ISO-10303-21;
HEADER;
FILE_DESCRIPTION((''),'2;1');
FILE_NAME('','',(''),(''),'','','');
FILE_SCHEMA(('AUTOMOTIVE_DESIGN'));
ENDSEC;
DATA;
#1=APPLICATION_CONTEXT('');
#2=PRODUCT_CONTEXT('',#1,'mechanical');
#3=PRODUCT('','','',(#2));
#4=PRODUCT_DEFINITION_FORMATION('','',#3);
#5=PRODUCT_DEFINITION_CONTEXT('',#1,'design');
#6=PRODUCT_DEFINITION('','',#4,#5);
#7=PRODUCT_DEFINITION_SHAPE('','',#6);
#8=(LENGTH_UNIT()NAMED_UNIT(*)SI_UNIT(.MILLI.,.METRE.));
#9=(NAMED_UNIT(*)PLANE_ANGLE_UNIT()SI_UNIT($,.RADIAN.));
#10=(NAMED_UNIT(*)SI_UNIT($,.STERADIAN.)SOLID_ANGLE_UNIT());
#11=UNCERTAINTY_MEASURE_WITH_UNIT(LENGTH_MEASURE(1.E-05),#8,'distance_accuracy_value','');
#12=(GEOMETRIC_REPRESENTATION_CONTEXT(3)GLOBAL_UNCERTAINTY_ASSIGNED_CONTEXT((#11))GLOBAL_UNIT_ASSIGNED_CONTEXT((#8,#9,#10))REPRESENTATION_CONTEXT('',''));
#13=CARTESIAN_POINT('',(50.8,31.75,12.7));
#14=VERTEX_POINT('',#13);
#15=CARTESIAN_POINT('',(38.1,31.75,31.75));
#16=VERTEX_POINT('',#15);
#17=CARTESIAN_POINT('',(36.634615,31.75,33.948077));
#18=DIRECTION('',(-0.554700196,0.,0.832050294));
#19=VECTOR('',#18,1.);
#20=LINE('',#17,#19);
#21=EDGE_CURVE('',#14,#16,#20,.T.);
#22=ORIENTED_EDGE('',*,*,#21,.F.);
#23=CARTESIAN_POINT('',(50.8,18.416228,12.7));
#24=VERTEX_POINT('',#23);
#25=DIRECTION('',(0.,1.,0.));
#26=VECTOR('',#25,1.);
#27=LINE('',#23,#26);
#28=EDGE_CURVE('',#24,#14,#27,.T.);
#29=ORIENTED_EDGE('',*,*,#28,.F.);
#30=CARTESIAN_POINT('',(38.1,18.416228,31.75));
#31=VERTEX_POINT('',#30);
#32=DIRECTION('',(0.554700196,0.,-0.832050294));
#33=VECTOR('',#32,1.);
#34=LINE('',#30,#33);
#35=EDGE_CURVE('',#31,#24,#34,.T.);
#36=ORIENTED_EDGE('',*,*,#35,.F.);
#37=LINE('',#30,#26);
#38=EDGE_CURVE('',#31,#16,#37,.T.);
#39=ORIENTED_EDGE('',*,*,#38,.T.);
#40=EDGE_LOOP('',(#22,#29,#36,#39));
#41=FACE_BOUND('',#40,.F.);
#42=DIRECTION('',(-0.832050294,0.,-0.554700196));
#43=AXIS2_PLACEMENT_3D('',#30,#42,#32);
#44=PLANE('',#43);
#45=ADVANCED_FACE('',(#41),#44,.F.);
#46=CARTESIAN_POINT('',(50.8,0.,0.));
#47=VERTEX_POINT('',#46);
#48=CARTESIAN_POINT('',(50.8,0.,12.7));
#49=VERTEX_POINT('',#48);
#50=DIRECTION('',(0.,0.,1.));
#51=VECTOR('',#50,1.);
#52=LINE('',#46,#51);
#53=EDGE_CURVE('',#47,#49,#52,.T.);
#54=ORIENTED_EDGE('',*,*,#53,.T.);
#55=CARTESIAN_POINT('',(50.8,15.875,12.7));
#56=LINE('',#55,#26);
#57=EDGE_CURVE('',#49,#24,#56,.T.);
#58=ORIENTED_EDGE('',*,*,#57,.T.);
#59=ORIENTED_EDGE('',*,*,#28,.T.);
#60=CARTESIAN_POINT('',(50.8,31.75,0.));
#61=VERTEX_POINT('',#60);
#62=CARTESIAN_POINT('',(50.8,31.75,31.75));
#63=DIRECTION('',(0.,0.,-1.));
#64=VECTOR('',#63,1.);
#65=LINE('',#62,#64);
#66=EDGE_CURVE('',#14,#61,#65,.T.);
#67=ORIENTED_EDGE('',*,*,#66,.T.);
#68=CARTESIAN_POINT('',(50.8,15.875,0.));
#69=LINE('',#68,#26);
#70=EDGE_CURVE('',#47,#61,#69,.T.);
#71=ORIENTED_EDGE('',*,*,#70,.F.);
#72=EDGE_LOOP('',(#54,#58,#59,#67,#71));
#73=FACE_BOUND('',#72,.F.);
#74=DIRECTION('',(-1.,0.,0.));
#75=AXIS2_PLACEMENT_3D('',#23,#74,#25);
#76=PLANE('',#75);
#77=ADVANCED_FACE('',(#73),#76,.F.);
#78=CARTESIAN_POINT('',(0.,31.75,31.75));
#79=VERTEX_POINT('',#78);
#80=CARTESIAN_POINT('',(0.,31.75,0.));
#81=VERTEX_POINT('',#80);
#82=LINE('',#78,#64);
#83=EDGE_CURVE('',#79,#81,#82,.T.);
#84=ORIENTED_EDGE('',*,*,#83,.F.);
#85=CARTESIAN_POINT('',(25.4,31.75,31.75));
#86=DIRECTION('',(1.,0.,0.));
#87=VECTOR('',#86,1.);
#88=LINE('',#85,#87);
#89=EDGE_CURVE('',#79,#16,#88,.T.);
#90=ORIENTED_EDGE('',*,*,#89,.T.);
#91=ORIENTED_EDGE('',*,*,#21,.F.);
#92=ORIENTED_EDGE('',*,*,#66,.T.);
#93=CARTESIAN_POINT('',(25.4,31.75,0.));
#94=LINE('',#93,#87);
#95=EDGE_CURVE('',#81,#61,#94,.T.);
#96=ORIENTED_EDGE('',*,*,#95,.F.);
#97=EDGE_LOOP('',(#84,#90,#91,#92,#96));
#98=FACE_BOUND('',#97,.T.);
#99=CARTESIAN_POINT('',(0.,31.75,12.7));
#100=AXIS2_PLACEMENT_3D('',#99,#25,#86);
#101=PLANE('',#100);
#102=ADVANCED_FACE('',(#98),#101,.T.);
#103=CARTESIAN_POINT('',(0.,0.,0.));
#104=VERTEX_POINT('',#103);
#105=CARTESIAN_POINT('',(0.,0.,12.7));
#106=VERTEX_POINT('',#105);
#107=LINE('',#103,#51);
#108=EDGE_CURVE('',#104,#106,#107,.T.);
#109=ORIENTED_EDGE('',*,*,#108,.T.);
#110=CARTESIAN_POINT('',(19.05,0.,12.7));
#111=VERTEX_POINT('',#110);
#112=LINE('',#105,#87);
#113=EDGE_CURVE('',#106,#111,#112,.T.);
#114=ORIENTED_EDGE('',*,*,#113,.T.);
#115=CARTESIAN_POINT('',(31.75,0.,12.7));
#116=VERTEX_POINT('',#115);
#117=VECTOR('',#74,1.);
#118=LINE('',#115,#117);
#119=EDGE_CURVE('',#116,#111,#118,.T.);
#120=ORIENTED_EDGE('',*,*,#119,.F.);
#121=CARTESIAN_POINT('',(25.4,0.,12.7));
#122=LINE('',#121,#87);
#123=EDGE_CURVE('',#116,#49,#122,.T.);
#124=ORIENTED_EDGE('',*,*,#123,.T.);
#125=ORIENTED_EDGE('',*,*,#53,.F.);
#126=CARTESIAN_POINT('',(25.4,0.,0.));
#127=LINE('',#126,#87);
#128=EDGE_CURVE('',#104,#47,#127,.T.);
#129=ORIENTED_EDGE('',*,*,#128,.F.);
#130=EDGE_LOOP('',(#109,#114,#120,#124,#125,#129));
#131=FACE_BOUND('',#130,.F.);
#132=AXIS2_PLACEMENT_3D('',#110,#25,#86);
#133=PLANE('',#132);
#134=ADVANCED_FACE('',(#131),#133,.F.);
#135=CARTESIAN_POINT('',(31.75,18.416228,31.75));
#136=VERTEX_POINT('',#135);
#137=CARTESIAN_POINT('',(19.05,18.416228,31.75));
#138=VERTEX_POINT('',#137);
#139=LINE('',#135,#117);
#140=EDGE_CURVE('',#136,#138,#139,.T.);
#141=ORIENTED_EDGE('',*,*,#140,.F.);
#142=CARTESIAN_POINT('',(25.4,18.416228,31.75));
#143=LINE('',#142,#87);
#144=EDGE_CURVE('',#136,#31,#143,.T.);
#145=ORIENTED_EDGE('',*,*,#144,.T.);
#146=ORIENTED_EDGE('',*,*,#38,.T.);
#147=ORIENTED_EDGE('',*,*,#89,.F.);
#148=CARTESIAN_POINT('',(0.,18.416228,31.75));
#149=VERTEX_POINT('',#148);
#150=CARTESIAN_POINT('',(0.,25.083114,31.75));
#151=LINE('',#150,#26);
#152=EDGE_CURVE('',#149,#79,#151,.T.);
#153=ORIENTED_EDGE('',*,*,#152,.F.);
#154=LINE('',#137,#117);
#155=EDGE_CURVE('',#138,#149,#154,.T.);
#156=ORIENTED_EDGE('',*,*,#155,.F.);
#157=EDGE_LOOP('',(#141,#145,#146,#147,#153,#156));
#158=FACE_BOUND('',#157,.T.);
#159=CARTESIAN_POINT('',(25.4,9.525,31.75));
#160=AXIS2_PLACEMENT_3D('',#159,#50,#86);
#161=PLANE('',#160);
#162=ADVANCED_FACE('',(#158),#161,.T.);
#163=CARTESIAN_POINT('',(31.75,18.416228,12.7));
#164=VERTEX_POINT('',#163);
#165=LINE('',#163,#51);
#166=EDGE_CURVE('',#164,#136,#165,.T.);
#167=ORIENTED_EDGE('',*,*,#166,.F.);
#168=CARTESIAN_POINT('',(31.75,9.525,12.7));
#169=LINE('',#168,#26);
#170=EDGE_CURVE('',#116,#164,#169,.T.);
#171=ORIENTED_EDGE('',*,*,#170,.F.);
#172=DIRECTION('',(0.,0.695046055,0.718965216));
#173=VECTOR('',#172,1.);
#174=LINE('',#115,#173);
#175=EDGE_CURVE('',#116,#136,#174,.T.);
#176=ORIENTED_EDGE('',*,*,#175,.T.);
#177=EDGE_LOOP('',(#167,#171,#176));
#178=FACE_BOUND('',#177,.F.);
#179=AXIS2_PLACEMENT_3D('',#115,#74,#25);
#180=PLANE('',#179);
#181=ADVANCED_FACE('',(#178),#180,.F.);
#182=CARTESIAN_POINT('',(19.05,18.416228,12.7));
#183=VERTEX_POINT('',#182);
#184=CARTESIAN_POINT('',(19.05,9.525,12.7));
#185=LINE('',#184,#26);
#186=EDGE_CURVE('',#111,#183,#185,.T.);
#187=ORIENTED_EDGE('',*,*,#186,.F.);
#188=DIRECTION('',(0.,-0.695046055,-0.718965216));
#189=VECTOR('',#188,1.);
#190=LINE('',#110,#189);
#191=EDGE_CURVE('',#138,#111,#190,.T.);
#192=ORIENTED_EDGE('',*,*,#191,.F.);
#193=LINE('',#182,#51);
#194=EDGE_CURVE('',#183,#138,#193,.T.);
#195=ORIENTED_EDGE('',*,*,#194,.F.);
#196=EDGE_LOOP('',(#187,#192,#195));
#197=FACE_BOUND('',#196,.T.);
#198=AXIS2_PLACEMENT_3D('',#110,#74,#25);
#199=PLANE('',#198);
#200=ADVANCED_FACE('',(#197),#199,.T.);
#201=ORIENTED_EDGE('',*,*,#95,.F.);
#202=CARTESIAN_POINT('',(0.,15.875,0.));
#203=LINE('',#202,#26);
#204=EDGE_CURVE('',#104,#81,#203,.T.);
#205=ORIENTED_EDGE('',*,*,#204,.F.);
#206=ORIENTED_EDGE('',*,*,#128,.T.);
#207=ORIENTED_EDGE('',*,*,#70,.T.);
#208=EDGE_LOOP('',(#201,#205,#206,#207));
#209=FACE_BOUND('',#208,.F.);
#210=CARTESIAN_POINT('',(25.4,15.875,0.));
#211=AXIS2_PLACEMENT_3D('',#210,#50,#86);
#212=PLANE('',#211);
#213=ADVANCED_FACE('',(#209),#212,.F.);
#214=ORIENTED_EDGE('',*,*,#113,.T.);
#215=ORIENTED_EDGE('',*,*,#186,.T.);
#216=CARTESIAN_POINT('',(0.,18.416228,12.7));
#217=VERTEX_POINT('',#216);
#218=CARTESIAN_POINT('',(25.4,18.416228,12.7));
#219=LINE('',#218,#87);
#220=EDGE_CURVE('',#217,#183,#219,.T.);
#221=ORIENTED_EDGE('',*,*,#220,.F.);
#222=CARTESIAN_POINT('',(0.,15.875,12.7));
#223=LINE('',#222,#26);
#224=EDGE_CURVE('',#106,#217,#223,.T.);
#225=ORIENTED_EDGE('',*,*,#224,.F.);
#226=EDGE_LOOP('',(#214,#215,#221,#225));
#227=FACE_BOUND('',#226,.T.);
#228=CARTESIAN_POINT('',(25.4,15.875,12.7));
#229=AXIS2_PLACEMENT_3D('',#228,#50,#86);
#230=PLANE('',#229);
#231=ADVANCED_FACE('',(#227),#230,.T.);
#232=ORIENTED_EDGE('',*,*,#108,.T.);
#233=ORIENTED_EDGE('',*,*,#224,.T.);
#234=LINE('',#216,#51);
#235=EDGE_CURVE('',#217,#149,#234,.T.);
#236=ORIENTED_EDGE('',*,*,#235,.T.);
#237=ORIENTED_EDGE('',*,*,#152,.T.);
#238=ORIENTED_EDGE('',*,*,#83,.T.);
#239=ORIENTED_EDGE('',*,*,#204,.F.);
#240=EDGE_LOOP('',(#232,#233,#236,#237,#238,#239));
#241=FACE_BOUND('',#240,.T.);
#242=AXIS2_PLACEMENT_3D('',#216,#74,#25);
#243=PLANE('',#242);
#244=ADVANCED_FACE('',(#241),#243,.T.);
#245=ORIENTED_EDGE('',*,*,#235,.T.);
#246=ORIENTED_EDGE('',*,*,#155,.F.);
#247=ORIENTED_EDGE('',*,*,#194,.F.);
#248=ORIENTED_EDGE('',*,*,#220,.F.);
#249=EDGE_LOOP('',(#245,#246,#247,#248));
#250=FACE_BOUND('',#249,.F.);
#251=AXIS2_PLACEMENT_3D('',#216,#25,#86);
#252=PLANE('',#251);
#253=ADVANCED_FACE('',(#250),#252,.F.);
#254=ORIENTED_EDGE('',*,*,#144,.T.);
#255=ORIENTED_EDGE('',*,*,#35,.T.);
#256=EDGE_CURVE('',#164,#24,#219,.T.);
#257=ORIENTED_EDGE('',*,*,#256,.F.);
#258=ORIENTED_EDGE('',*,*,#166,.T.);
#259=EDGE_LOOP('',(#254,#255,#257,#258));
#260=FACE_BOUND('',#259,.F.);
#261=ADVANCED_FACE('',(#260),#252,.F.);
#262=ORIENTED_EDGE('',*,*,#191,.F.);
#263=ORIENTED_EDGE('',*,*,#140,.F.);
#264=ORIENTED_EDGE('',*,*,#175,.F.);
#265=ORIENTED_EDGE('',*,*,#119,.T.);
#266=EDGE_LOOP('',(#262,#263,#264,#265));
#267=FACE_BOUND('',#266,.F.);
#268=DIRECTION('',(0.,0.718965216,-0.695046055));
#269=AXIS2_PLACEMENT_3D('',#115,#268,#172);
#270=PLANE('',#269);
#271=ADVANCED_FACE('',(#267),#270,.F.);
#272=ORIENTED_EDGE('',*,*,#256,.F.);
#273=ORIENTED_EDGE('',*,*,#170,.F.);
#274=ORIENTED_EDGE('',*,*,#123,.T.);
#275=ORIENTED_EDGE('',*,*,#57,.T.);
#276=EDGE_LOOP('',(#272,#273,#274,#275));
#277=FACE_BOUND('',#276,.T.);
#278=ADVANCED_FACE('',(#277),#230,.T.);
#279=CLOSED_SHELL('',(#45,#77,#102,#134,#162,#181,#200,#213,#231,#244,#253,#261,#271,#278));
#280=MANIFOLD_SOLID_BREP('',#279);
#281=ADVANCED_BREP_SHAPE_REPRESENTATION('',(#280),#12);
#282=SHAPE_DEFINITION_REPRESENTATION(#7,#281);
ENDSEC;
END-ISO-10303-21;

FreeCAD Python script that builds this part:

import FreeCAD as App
import Part
import Sketcher
from FreeCAD import Vector
Q = App.Units.Quantity

doc = App.newDocument("Part")
params = doc.addObject("Spreadsheet::Sheet", "Params")
for row, (alias, value) in enumerate([
    ("sketch1_width", "2 in"),
    ("sketch1_height", "1.25 in"),
    ("pad1_length", "0.5 in"),
    ("sketch2_width", "2 in"),
    ("pad2_length", "0.75 in"),
    ("sketch3_width", "0.5 in"),
    ("sketch3_height", "0.75 in"),
    ("pocket1_length", "1 in"),
    ("sketch4_width", "0.5 in"),
    ("sketch4_height", "0.75 in"),
    ("pad3_length", "0.75 in"),
    ("sketch5_height", "0.75 in"),
    ("pocket2_length", "0.75 in"),
], start=1):
    params.set(f"A{row}", alias)
    params.set(f"B{row}", "=" + value)
    params.setAlias(f"B{row}", alias)

body = doc.addObject("PartDesign::Body", "Body")

# Sketch on XY plane
sketch1 = body.newObject("Sketcher::SketchObject", "Sketch")
sketch1.AttachmentSupport = (doc.getObject("XY_Plane"), [""])
sketch1.MapMode = "FlatFace"
sketch1.addGeometry([
    Part.LineSegment(Vector(0, 31.75, 0), Vector(0, 0, 0)),
    Part.LineSegment(Vector(0, 0, 0), Vector(50.8, 0, 0)),
    Part.LineSegment(Vector(50.8, 0, 0), Vector(50.8, 31.75, 0)),
    Part.LineSegment(Vector(50.8, 31.75, 0), Vector(0, 31.75, 0)),
], False)
sketch1.addConstraint([
    Sketcher.Constraint("Coincident", 0, 2, 1, 1),
    Sketcher.Constraint("Coincident", 1, 2, 2, 1),
    Sketcher.Constraint("Coincident", 2, 2, 3, 1),
    Sketcher.Constraint("Coincident", 3, 2, 0, 1),
    Sketcher.Constraint("Vertical", 0),
    Sketcher.Constraint("Horizontal", 1),
    Sketcher.Constraint("Vertical", 2),
    Sketcher.Constraint("Horizontal", 3),
    Sketcher.Constraint("Coincident", 0, 2, -1, 1),
    Sketcher.Constraint("DistanceX", 1, 1, 1, 2, Q("2 in")),
    Sketcher.Constraint("DistanceY", 0, 2, 0, 1, Q("1.25 in")),
])
sketch1.setExpression("Constraints[9]", "Params.sketch1_width")
sketch1.setExpression("Constraints[10]", "Params.sketch1_height")
pad1 = body.newObject("PartDesign::Pad", "Pad")
pad1.Profile = sketch1
pad1.setExpression("Length", "Params.pad1_length")

# Sketch on XY plane
sketch2 = body.newObject("Sketcher::SketchObject", "Sketch001")
sketch2.AttachmentSupport = (doc.getObject("XY_Plane"), [""])
sketch2.MapMode = "FlatFace"
sketch2.AttachmentOffset = App.Placement(Vector(0, 0, 0.5 * 25.4), App.Rotation())
sketch2.addGeometry([
    Part.LineSegment(Vector(0, 31.75, 0), Vector(0, 18.416228, 0)),
    Part.LineSegment(Vector(0, 18.416228, 0), Vector(50.8, 18.416228, 0)),
    Part.LineSegment(Vector(50.8, 18.416228, 0), Vector(50.8, 31.75, 0)),
    Part.LineSegment(Vector(50.8, 31.75, 0), Vector(0, 31.75, 0)),
], False)
sketch2.addConstraint([
    Sketcher.Constraint("Coincident", 0, 2, 1, 1),
    Sketcher.Constraint("Coincident", 1, 2, 2, 1),
    Sketcher.Constraint("Coincident", 2, 2, 3, 1),
    Sketcher.Constraint("Coincident", 3, 2, 0, 1),
    Sketcher.Constraint("Vertical", 0),
    Sketcher.Constraint("Horizontal", 1),
    Sketcher.Constraint("Vertical", 2),
    Sketcher.Constraint("Horizontal", 3),
    Sketcher.Constraint("PointOnObject", 0, 2, -2),
    Sketcher.Constraint("DistanceX", 1, 1, 1, 2, Q("2 in")),
    Sketcher.Constraint("DistanceY", -1, 1, 2, 2, Q("1.25 in")),
    Sketcher.Constraint("DistanceY", 0, 2, 0, 1, Q("13.333772 mm")),
])
sketch2.setExpression("Constraints[9]", "Params.sketch2_width")
pad2 = body.newObject("PartDesign::Pad", "Pad001")
pad2.Profile = sketch2
pad2.setExpression("Length", "Params.pad2_length")

# Sketch on XZ plane
sketch3 = body.newObject("Sketcher::SketchObject", "Sketch002")
sketch3.AttachmentSupport = (doc.getObject("XZ_Plane"), [""])
sketch3.MapMode = "FlatFace"
sketch3.AttachmentOffset = App.Placement(Vector(0, 0, -18.416228), App.Rotation())
sketch3.addGeometry([
    Part.LineSegment(Vector(38.1, 31.75, 0), Vector(50.8, 12.7, 0)),
    Part.LineSegment(Vector(50.8, 12.7, 0), Vector(50.8, 31.75, 0)),
    Part.LineSegment(Vector(50.8, 31.75, 0), Vector(38.1, 31.75, 0)),
], False)
sketch3.addConstraint([
    Sketcher.Constraint("Coincident", 0, 2, 1, 1),
    Sketcher.Constraint("Coincident", 1, 2, 2, 1),
    Sketcher.Constraint("Coincident", 2, 2, 0, 1),
    Sketcher.Constraint("Vertical", 1),
    Sketcher.Constraint("Horizontal", 2),
    Sketcher.Constraint("DistanceX", 2, 2, 2, 1, Q("0.5 in")),
    Sketcher.Constraint("DistanceX", -1, 1, 0, 2, Q("2 in")),
    Sketcher.Constraint("DistanceY", 1, 1, 1, 2, Q("0.75 in")),
    Sketcher.Constraint("DistanceY", -1, 1, 0, 2, Q("0.5 in")),
])
sketch3.setExpression("Constraints[5]", "Params.sketch3_width")
sketch3.setExpression("Constraints[7]", "Params.sketch3_height")
pocket1 = body.newObject("PartDesign::Pocket", "Pocket")
pocket1.Profile = sketch3
pocket1.setExpression("Length", "Params.pocket1_length")

# Sketch on XY plane
sketch4 = body.newObject("Sketcher::SketchObject", "Sketch003")
sketch4.AttachmentSupport = (doc.getObject("XY_Plane"), [""])
sketch4.MapMode = "FlatFace"
sketch4.AttachmentOffset = App.Placement(Vector(0, 0, 0.5 * 25.4), App.Rotation())
sketch4.addGeometry([
    Part.LineSegment(Vector(19.05, 19.05, 0), Vector(19.05, 0, 0)),
    Part.LineSegment(Vector(19.05, 0, 0), Vector(31.75, 0, 0)),
    Part.LineSegment(Vector(31.75, 0, 0), Vector(31.75, 19.05, 0)),
    Part.LineSegment(Vector(31.75, 19.05, 0), Vector(19.05, 19.05, 0)),
], False)
sketch4.addConstraint([
    Sketcher.Constraint("Coincident", 0, 2, 1, 1),
    Sketcher.Constraint("Coincident", 1, 2, 2, 1),
    Sketcher.Constraint("Coincident", 2, 2, 3, 1),
    Sketcher.Constraint("Coincident", 3, 2, 0, 1),
    Sketcher.Constraint("Vertical", 0),
    Sketcher.Constraint("Horizontal", 1),
    Sketcher.Constraint("Vertical", 2),
    Sketcher.Constraint("Horizontal", 3),
    Sketcher.Constraint("PointOnObject", 0, 2, -1),
    Sketcher.Constraint("DistanceX", 1, 1, 1, 2, Q("0.5 in")),
    Sketcher.Constraint("DistanceY", 0, 2, 0, 1, Q("0.75 in")),
    Sketcher.Constraint("DistanceX", -1, 1, 0, 2, Q("0.75 in")),
])
sketch4.setExpression("Constraints[9]", "Params.sketch4_width")
sketch4.setExpression("Constraints[10]", "Params.sketch4_height")
pad3 = body.newObject("PartDesign::Pad", "Pad002")
pad3.Profile = sketch4
pad3.setExpression("Length", "Params.pad3_length")

# Sketch on YZ plane
sketch5 = body.newObject("Sketcher::SketchObject", "Sketch004")
sketch5.AttachmentSupport = (doc.getObject("YZ_Plane"), [""])
sketch5.MapMode = "FlatFace"
sketch5.AttachmentOffset = App.Placement(Vector(0, 0, 1.25 * 25.4), App.Rotation())
sketch5.addGeometry([
    Part.LineSegment(Vector(0, 12.7, 0), Vector(18.416228, 31.75, 0)),
    Part.LineSegment(Vector(18.416228, 31.75, 0), Vector(0, 31.75, 0)),
    Part.LineSegment(Vector(0, 31.75, 0), Vector(0, 12.7, 0)),
], False)
sketch5.addConstraint([
    Sketcher.Constraint("Coincident", 0, 2, 1, 1),
    Sketcher.Constraint("Coincident", 1, 2, 2, 1),
    Sketcher.Constraint("Coincident", 2, 2, 0, 1),
    Sketcher.Constraint("Horizontal", 1),
    Sketcher.Constraint("Vertical", 2),
    Sketcher.Constraint("PointOnObject", 1, 2, -2),
    Sketcher.Constraint("DistanceY", 2, 2, 2, 1, Q("0.75 in")),
    Sketcher.Constraint("DistanceY", -1, 1, 2, 2, Q("0.5 in")),
    Sketcher.Constraint("DistanceX", 1, 2, 1, 1, Q("18.416228 mm")),
])
sketch5.setExpression("Constraints[6]", "Params.sketch5_height")
pocket2 = body.newObject("PartDesign::Pocket", "Pocket001")
pocket2.Profile = sketch5
pocket2.setExpression("Length", "Params.pocket2_length")

doc.recompute()
